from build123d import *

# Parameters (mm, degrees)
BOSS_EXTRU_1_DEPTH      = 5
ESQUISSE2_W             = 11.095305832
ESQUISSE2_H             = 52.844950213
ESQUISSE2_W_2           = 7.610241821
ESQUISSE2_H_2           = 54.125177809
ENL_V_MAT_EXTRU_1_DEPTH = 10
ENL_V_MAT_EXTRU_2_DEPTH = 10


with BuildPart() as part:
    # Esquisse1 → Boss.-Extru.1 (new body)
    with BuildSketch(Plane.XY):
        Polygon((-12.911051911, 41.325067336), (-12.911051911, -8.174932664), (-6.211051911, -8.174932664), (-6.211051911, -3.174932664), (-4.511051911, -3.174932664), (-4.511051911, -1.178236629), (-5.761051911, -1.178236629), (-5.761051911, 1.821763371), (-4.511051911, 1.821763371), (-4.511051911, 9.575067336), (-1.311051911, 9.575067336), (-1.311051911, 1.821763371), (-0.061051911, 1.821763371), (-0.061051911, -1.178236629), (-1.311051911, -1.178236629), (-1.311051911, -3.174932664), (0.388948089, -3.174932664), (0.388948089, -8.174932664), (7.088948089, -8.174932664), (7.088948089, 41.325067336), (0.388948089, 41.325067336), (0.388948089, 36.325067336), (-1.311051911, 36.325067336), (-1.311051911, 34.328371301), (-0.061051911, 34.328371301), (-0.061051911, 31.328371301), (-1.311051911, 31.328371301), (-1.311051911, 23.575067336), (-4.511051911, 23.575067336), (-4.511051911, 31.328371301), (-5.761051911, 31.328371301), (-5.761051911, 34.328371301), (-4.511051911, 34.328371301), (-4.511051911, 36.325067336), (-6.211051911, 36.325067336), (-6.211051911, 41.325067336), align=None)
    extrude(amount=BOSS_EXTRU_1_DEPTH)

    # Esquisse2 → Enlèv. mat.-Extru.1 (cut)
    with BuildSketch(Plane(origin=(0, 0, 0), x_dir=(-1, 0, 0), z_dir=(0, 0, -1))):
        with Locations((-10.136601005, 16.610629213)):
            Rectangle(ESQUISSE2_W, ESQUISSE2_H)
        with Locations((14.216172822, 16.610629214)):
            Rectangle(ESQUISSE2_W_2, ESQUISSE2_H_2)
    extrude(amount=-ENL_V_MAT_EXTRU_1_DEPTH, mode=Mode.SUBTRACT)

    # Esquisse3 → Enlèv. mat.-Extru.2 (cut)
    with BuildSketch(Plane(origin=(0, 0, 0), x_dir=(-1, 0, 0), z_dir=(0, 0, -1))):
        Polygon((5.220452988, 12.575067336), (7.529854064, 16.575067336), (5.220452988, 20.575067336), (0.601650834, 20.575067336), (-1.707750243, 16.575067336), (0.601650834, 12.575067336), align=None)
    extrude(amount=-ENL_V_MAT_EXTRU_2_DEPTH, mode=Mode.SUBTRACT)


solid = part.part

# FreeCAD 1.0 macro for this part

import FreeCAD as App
import Part
import Sketcher

V = App.Vector
Q = App.Units.Quantity


def add_polygon(sketch, points):
    """Adds a closed chain of lines whose ends are joined by coincident constraints."""
    first, n = sketch.GeometryCount, len(points)
    for a, b in zip(points, points[1:] + points[:1]):
        sketch.addGeometry(Part.LineSegment(App.Vector(*a, 0), App.Vector(*b, 0)), False)
    for i in range(n):
        sketch.addConstraint(Sketcher.Constraint("Coincident", first + i, 2, first + (i + 1) % n, 1))

doc = App.newDocument("Part")
body = doc.addObject("PartDesign::Body", "Body")

sketch1 = body.newObject("Sketcher::SketchObject", "Sketch")
sketch1.AttachmentSupport = (doc.getObject("XY_Plane"), [""])
sketch1.MapMode = "FlatFace"
add_polygon(sketch1, [(-12.9, 41.3), (-12.9, -8.2), (-6.2, -8.2), (-6.2, -3.2), (-4.5, -3.2), (-4.5, -1.2), (-5.8, -1.2), (-5.8, 1.8), (-4.5, 1.8), (-4.5, 9.6), (-1.3, 9.6), (-1.3, 1.8), (-0.1, 1.8), (-0.1, -1.2), (-1.3, -1.2), (-1.3, -3.2), (0.4, -3.2), (0.4, -8.2), (7.1, -8.2), (7.1, 41.3), (0.4, 41.3), (0.4, 36.3), (-1.3, 36.3), (-1.3, 34.3), (-0.1, 34.3), (-0.1, 31.3), (-1.3, 31.3), (-1.3, 23.6), (-4.5, 23.6), (-4.5, 31.3), (-5.8, 31.3), (-5.8, 34.3), (-4.5, 34.3), (-4.5, 36.3), (-6.2, 36.3), (-6.2, 41.3)])
sketch1.addConstraint([
    Sketcher.Constraint("Vertical", 0),
    Sketcher.Constraint("Horizontal", 1),
    Sketcher.Constraint("Vertical", 2),
    Sketcher.Constraint("Horizontal", 3),
    Sketcher.Constraint("Vertical", 4),
    Sketcher.Constraint("Horizontal", 5),
    Sketcher.Constraint("Vertical", 6),
    Sketcher.Constraint("Horizontal", 7),
    Sketcher.Constraint("Vertical", 8),
    Sketcher.Constraint("Horizontal", 9),
    Sketcher.Constraint("Vertical", 10),
    Sketcher.Constraint("Horizontal", 11),
    Sketcher.Constraint("Vertical", 12),
    Sketcher.Constraint("Horizontal", 13),
    Sketcher.Constraint("Vertical", 14),
    Sketcher.Constraint("Horizontal", 15),
    Sketcher.Constraint("Vertical", 16),
    Sketcher.Constraint("Horizontal", 17),
    Sketcher.Constraint("Vertical", 18),
    Sketcher.Constraint("Horizontal", 19),
    Sketcher.Constraint("Vertical", 20),
    Sketcher.Constraint("Horizontal", 21),
    Sketcher.Constraint("Vertical", 22),
    Sketcher.Constraint("Horizontal", 23),
    Sketcher.Constraint("Vertical", 24),
    Sketcher.Constraint("Horizontal", 25),
    Sketcher.Constraint("Vertical", 26),
    Sketcher.Constraint("Horizontal", 27),
    Sketcher.Constraint("Vertical", 28),
    Sketcher.Constraint("Horizontal", 29),
    Sketcher.Constraint("Vertical", 30),
    Sketcher.Constraint("Horizontal", 31),
    Sketcher.Constraint("Vertical", 32),
    Sketcher.Constraint("Horizontal", 33),
    Sketcher.Constraint("Vertical", 34),
    Sketcher.Constraint("Horizontal", 35),
    Sketcher.Constraint("Horizontal", 7, 2, 10, 2),
    Sketcher.Constraint("Horizontal", 5, 2, 12, 2),
    Sketcher.Constraint("Horizontal", 3, 2, 14, 2),
    Sketcher.Constraint("Horizontal", 1, 2, 16, 2),
    Sketcher.Constraint("Horizontal", 25, 2, 28, 2),
    Sketcher.Constraint("Horizontal", 23, 2, 30, 2),
    Sketcher.Constraint("Horizontal", 21, 2, 32, 2),
    Sketcher.Constraint("Horizontal", 19, 2, 34, 2),
    Sketcher.Constraint("Vertical", 4, 2, 7, 2),
    Sketcher.Constraint("Vertical", 10, 2, 13, 2),
    Sketcher.Constraint("Vertical", 16, 2, 19, 2),
    Sketcher.Constraint("Vertical", 14, 2, 21, 2),
    Sketcher.Constraint("Vertical", 12, 2, 23, 2),
    Sketcher.Constraint("Vertical", 22, 2, 25, 2),
    Sketcher.Constraint("Vertical", 8, 2, 27, 2),
    Sketcher.Constraint("Vertical", 6, 2, 29, 2),
    Sketcher.Constraint("Vertical", 28, 2, 31, 2),
    Sketcher.Constraint("Vertical", 2, 2, 33, 2),
    Sketcher.Constraint("Equal", 7, 11),
    Sketcher.Constraint("Equal", 3, 15),
    Sketcher.Constraint("Equal", 1, 17),
    Sketcher.Constraint("Equal", 16, 20),
    Sketcher.Constraint("Equal", 14, 22),
    Sketcher.Constraint("Equal", 12, 24),
    Sketcher.Constraint("Equal", 10, 26),
    Sketcher.Constraint("DistanceY", 2, 1, 2, 2, 5.0),
    Sketcher.Constraint("DistanceY", 6, 1, 6, 2, 3.0),
    Sketcher.Constraint("DistanceX", 1, 1, 1, 2, 6.7),
    Sketcher.Constraint("DistanceX", 3, 1, 3, 2, 1.7),
    Sketcher.Constraint("DistanceX", 9, 1, 9, 2, 3.2),
    Sketcher.Constraint("DistanceY", 0, 2, 0, 1, 49.5),
    Sketcher.Constraint("DistanceX", 5, 2, 5, 1, 1.25),
    Sketcher.Constraint("DistanceY", 3, 2, 8, 2, 12.75),
    Sketcher.Constraint("DistanceY", 4, 1, 4, 2, 1.996696),
    Sketcher.Constraint("DistanceX", 0, 2, -1, 1, 12.911052),
    Sketcher.Constraint("DistanceY", -1, 1, 22, 2, 34.328371),
])
pad1 = body.newObject("PartDesign::Pad", "Pad")
pad1.Profile = sketch1
pad1.Length = 5

sketch2 = body.newObject("Sketcher::SketchObject", "Sketch001")
sketch2.AttachmentSupport = (doc.getObject("XY_Plane"), [""])
sketch2.MapMode = "FlatFace"
add_polygon(sketch2, [(16, 43), (16, -10), (5, -10), (5, 43)])
add_polygon(sketch2, [(-10, 44), (-10, -10), (-18, -10), (-18, 44)])
sketch2.addConstraint([
    Sketcher.Constraint("Vertical", 0),
    Sketcher.Constraint("Horizontal", 1),
    Sketcher.Constraint("Vertical", 2),
    Sketcher.Constraint("Horizontal", 3),
    Sketcher.Constraint("Vertical", 4),
    Sketcher.Constraint("Horizontal", 5),
    Sketcher.Constraint("Vertical", 6),
    Sketcher.Constraint("Horizontal", 7),
    Sketcher.Constraint("DistanceX", 4, 2, 1, 2, 15.0),
    Sketcher.Constraint("DistanceX", 5, 2, 5, 1, 7.610242),
    Sketcher.Constraint("DistanceY", 0, 2, 0, 1, 52.84495),
    Sketcher.Constraint("DistanceX", 1, 2, 1, 1, 11.095306),
    Sketcher.Constraint("DistanceY", 4, 2, 4, 1, 54.125178),
    Sketcher.Constraint("DistanceX", -1, 1, 1, 2, 4.588948),
    Sketcher.Constraint("DistanceY", 4, 2, -1, 1, 10.45196),
    Sketcher.Constraint("DistanceY", 0, 2, -1, 1, 9.811846),
])
pocket1 = body.newObject("PartDesign::Pocket", "Pocket")
pocket1.Profile = sketch2
pocket1.Length = 10
pocket1.Reversed = True

sketch3 = body.newObject("Sketcher::SketchObject", "Sketch002")
sketch3.AttachmentSupport = (doc.getObject("XY_Plane"), [""])
sketch3.MapMode = "FlatFace"
add_polygon(sketch3, [(-5.2, 12.6), (-7.5, 16.6), (-5.2, 20.6), (-0.6, 20.6), (1.7, 16.6), (-0.6, 12.6)])
sketch3.addConstraint([
    Sketcher.Constraint("Horizontal", 2),
    Sketcher.Constraint("Horizontal", 5),
    Sketcher.Constraint("Parallel", 0, 3),
    Sketcher.Constraint("Parallel", 1, 4),
    Sketcher.Constraint("Horizontal", 0, 2, 3, 2),
    Sketcher.Constraint("Vertical", 2, 2, 4, 2),
    Sketcher.Constraint("Vertical", 1, 2, 5, 2),
    Sketcher.Constraint("Angle", 0, Q("120 deg")),
    Sketcher.Constraint("DistanceY", 0, 2, 1, 2, 4.0),
    Sketcher.Constraint("DistanceX", 2, 1, 2, 2, 4.618802),
    Sketcher.Constraint("DistanceX", 2, 2, -1, 1, 0.601651),
    Sketcher.Constraint("DistanceY", -1, 1, 0, 2, 16.575067),
])
pocket2 = body.newObject("PartDesign::Pocket", "Pocket001")
pocket2.Profile = sketch3
pocket2.Length = 10
pocket2.Reversed = True

doc.recompute()
